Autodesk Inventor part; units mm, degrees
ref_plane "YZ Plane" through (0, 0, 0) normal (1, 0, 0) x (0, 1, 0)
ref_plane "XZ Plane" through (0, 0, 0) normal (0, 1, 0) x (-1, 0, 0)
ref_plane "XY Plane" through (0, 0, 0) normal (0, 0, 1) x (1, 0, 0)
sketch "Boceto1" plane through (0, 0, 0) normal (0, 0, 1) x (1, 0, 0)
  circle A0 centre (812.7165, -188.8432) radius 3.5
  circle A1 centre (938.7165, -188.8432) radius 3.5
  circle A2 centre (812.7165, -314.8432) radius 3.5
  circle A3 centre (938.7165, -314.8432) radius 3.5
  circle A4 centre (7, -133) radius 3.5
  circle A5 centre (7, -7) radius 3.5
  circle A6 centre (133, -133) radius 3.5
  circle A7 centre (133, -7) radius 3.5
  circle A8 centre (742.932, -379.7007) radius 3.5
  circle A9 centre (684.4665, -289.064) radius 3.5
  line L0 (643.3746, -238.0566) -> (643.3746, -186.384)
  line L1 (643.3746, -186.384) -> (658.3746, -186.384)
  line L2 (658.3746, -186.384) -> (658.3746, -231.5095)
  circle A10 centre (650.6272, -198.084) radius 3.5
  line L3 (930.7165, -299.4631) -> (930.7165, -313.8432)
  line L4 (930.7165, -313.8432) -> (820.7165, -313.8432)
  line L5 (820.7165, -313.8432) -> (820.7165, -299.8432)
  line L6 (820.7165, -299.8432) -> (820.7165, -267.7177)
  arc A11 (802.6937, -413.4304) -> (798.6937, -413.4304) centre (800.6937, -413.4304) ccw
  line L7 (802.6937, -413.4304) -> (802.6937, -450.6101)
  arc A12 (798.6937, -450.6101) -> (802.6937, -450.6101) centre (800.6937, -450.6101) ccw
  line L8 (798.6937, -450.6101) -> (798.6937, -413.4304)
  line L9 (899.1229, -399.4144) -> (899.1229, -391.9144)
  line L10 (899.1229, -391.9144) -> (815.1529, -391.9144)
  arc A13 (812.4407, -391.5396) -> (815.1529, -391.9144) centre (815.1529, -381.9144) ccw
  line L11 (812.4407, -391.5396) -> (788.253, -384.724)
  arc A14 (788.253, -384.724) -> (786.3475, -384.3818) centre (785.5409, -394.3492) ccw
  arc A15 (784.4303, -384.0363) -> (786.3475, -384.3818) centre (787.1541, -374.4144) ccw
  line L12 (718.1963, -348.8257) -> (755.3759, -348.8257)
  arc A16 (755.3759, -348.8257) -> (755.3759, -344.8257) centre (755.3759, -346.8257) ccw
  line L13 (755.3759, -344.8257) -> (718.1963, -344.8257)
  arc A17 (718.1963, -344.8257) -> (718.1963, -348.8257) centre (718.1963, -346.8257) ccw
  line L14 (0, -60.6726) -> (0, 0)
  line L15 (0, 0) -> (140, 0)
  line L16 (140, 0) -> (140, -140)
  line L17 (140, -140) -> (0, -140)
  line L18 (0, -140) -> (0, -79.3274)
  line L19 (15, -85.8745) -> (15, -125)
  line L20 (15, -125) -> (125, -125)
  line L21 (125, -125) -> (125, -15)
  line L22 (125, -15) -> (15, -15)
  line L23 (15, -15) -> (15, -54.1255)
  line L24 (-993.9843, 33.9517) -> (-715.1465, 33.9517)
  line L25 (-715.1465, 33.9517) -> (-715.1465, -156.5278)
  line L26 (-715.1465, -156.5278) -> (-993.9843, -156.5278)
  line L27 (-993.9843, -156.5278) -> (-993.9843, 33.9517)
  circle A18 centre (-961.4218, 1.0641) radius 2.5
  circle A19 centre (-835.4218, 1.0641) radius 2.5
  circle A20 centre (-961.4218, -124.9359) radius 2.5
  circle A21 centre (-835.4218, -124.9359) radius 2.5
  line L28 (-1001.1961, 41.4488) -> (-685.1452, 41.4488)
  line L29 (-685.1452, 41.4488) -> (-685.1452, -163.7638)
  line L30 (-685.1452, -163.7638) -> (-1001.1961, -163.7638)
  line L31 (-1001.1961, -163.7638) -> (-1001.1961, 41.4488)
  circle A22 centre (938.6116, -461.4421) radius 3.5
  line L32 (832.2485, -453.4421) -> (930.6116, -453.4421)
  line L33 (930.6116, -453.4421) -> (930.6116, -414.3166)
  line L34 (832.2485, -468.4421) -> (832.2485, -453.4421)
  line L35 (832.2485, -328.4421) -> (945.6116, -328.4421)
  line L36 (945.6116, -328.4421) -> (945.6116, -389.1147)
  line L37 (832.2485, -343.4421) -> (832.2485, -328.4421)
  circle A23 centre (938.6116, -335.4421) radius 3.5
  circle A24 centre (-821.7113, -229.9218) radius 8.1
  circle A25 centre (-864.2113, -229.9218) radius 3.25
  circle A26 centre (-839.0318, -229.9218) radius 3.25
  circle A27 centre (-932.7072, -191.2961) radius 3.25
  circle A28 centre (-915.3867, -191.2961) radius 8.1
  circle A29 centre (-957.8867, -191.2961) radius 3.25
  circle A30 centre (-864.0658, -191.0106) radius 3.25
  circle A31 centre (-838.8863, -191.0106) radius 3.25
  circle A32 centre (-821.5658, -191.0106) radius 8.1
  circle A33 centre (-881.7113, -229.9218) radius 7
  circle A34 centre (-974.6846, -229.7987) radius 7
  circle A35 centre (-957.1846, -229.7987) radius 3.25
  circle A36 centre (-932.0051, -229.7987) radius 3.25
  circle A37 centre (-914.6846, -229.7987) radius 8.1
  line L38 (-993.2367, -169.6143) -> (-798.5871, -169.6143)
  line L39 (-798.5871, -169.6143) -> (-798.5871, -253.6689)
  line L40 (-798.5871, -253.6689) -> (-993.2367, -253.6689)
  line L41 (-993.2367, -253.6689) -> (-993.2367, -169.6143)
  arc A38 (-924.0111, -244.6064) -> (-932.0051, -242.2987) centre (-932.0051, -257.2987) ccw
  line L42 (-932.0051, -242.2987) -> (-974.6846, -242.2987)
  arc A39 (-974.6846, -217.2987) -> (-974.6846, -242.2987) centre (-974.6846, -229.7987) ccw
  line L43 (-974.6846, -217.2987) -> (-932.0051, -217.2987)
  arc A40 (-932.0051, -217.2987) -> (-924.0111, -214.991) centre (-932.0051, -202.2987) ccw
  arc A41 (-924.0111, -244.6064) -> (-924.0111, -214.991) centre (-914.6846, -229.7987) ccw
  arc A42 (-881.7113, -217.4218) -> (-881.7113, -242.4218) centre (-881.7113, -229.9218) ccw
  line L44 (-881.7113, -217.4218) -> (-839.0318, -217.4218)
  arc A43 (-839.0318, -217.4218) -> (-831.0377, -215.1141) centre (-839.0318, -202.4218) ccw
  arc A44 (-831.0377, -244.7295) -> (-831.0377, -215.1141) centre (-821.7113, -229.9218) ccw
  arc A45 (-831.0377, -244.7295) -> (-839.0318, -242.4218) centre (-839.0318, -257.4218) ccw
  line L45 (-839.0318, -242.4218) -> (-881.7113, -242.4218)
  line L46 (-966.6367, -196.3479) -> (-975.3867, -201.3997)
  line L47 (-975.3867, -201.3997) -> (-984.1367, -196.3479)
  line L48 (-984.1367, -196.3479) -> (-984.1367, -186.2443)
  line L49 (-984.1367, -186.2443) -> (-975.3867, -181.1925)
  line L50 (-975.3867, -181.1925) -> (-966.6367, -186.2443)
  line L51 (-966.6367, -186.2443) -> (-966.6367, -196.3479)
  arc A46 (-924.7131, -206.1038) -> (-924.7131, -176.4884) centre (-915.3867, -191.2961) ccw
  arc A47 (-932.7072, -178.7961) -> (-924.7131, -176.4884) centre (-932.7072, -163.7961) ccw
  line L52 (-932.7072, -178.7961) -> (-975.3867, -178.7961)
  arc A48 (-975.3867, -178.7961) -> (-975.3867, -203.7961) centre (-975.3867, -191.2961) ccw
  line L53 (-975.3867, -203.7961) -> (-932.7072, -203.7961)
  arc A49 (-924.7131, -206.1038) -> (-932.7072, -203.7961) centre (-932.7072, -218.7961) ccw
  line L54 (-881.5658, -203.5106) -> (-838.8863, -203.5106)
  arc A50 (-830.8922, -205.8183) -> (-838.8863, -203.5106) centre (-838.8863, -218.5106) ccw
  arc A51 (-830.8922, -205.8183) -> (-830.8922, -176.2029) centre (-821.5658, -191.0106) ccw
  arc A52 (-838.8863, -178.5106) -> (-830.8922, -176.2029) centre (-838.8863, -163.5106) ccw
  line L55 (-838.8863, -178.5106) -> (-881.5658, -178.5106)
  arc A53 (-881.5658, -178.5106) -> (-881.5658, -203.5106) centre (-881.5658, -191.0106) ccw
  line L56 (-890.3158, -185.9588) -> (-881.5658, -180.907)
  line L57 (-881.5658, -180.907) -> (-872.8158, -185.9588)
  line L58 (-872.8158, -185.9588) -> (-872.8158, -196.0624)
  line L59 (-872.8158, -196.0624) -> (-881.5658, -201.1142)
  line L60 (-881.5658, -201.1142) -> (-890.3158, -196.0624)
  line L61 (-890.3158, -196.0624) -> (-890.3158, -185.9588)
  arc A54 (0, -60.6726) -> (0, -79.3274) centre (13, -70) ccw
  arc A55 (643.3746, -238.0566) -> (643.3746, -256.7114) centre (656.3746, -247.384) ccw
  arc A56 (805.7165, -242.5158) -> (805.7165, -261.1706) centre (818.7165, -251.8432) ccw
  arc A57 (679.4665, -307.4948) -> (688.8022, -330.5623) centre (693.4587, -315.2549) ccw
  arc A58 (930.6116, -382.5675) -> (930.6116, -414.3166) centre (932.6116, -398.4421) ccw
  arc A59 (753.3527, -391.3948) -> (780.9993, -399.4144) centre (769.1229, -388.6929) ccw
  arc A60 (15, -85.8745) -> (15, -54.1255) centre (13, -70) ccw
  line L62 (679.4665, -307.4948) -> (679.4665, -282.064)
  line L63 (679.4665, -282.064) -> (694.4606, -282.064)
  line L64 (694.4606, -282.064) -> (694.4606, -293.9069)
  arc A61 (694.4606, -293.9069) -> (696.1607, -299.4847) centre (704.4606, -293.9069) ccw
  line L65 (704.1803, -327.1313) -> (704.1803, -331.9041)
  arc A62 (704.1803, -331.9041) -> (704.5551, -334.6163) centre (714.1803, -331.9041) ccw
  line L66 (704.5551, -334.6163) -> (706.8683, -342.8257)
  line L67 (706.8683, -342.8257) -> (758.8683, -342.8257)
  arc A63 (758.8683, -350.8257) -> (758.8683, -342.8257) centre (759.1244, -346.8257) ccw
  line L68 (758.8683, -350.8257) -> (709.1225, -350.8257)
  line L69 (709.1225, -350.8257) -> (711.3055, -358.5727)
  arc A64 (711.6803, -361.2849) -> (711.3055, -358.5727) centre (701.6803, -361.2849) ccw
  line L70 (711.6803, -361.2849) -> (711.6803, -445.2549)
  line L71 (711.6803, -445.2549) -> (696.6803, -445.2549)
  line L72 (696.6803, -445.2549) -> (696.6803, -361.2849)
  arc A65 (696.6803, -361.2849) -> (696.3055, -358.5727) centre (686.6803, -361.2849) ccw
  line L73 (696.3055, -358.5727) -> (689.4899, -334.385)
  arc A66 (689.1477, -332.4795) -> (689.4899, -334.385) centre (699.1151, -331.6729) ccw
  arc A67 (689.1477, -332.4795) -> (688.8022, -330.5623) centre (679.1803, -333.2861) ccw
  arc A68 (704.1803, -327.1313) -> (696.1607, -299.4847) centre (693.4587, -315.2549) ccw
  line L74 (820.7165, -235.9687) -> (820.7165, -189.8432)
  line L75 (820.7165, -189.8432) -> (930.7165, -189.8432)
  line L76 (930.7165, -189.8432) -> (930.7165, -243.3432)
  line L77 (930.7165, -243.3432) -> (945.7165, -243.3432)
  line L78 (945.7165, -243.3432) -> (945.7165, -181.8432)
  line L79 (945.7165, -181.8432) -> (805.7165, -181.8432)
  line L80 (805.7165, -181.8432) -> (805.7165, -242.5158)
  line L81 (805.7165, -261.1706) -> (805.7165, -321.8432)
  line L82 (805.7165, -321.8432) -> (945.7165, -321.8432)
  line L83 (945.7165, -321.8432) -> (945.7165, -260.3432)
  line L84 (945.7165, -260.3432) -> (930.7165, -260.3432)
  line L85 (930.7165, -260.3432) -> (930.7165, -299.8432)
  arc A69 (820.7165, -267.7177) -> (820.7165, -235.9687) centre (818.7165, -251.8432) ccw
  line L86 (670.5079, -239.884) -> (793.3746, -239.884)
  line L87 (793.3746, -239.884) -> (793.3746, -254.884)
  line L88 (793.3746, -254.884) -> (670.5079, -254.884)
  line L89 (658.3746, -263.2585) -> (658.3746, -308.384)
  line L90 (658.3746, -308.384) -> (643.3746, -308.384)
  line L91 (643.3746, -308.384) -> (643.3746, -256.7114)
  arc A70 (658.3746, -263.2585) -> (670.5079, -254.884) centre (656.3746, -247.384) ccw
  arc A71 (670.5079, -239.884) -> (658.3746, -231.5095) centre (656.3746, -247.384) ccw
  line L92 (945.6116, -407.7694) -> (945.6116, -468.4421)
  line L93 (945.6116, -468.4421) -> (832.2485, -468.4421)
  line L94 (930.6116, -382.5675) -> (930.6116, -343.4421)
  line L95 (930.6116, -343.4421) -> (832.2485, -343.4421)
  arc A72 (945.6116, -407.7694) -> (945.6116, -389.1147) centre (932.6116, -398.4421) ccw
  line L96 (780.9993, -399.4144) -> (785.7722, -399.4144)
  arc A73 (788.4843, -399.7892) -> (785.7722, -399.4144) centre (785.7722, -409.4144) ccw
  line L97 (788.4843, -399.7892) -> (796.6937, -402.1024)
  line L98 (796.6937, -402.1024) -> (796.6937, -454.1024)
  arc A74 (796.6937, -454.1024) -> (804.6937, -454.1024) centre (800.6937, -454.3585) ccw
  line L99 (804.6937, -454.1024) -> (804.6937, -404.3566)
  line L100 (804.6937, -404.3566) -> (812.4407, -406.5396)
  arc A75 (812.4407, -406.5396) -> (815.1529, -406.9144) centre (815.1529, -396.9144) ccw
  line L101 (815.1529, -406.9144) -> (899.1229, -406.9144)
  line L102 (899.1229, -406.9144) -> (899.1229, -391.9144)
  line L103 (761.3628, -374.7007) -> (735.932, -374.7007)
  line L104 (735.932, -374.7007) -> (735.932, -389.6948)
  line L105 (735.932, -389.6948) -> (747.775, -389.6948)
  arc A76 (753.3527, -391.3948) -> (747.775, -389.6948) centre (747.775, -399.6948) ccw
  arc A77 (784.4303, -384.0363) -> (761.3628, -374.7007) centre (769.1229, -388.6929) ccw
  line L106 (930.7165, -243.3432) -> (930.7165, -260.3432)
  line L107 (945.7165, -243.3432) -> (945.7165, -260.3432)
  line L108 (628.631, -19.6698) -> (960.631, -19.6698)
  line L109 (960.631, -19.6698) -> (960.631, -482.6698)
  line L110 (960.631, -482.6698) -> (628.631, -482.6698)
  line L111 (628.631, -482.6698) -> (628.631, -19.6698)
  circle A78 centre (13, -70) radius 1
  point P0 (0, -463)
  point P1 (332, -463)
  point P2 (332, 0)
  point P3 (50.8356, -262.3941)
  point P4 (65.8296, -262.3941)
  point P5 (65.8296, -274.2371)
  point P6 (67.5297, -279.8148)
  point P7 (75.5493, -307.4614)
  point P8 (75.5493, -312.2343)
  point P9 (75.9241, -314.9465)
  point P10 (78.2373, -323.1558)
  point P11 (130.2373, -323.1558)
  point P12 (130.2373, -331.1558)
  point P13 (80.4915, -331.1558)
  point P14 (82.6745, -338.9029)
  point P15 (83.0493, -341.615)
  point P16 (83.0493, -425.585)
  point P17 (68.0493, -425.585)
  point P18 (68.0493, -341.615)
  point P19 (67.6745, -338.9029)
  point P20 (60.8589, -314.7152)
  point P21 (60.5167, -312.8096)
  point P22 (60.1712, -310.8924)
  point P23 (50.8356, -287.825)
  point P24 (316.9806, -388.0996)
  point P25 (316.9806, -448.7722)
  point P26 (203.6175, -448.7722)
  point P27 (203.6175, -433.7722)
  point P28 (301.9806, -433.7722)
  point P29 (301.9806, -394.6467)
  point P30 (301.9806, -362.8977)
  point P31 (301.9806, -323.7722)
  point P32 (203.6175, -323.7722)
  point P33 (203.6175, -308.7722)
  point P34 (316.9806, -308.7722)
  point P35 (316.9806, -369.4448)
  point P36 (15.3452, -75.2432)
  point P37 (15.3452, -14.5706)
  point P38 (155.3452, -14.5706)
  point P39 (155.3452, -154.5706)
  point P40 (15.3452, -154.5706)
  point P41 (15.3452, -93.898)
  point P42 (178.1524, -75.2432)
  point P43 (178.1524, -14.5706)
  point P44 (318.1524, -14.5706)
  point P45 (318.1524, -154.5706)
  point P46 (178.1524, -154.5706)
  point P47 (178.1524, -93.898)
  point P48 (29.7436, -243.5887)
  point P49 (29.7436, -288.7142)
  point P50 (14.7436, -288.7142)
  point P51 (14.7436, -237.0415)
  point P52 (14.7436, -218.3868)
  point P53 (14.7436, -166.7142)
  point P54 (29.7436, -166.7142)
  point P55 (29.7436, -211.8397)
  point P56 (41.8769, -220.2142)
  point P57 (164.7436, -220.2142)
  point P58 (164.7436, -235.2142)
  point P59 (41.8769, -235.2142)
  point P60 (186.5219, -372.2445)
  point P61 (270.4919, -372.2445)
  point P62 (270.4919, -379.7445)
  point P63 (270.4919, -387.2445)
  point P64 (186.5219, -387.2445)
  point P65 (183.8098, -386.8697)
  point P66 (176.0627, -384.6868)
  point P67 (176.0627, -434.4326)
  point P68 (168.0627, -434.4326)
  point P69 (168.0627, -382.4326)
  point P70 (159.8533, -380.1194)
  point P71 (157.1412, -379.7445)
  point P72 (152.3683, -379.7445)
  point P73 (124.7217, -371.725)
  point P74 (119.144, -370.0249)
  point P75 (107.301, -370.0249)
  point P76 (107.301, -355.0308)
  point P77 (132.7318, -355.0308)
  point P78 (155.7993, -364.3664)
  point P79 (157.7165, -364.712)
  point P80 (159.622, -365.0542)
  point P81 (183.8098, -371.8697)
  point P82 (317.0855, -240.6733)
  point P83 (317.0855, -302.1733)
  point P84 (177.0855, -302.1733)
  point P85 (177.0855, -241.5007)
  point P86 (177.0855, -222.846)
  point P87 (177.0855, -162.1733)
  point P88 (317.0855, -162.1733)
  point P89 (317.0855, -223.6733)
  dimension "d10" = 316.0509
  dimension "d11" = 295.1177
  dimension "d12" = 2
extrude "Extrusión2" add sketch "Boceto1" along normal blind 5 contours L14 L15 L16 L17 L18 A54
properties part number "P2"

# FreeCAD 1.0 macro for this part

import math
import FreeCAD as App
import Part
import Sketcher

V = App.Vector
Q = App.Units.Quantity

doc = App.newDocument("Part")
params = doc.addObject("Spreadsheet::Sheet", "Params")
for row, (alias, value) in enumerate([
    ("sketch1_diameter", "2 mm"),
    ("sketch1_diameter2", "7 mm"),
    ("sketch1_radius", "16 mm"),
    ("sketch1_width", "140 mm"),
    ("sketch1_width2", "110 mm"),
    ("pad1_length", "5 mm"),
], start=1):
    params.set(f"A{row}", alias)
    params.set(f"B{row}", "=" + value)
    params.setAlias(f"B{row}", alias)

body = doc.addObject("PartDesign::Body", "Body")

# Sketch on XY plane
sketch1 = doc.addObject("Sketcher::SketchObject", "Sketch")
body.addObject(sketch1)
sketch1.AttachmentSupport = (doc.XY_Plane, [""])
sketch1.MapMode = "FlatFace"
sketch1.addGeometry([
    Part.LineSegment(V(0, 0, 0), V(0, -60.7, 0)),  # 0
    Part.ArcOfCircle(Part.Circle(V(13, -70, 0), V(0, 0, 1), 16), math.radians(144), math.radians(216)),  # 1
    Part.LineSegment(V(0, -79.3, 0), V(0, -140, 0)),  # 2
    Part.LineSegment(V(0, -140, 0), V(140, -140, 0)),  # 3
    Part.LineSegment(V(140, -140, 0), V(140, 0, 0)),  # 4
    Part.LineSegment(V(140, 0, 0), V(0, 0, 0)),  # 5
    Part.Circle(V(7, -133, 0), V(0, 0, 1), 3.5),  # 6
    Part.Circle(V(133, -133, 0), V(0, 0, 1), 3.5),  # 7
    Part.Circle(V(13, -70, 0), V(0, 0, 1), 1),  # 8
    Part.LineSegment(V(15, -125, 0), V(15, -85.9, 0)),  # 9
    Part.ArcOfCircle(Part.Circle(V(13, -70, 0), V(0, 0, 1), 16), math.radians(-83), math.radians(83)),  # 10
    Part.LineSegment(V(15, -54.1, 0), V(15, -15, 0)),  # 11
    Part.LineSegment(V(15, -15, 0), V(125, -15, 0)),  # 12
    Part.LineSegment(V(125, -15, 0), V(125, -125, 0)),  # 13
    Part.LineSegment(V(125, -125, 0), V(15, -125, 0)),  # 14
    Part.Circle(V(7, -7, 0), V(0, 0, 1), 3.5),  # 15
    Part.Circle(V(133, -7, 0), V(0, 0, 1), 3.5),  # 16
], False)
sketch1.addConstraint([
    Sketcher.Constraint("Coincident", 0, 2, 1, 1),
    Sketcher.Constraint("Coincident", 1, 2, 2, 1),
    Sketcher.Constraint("Coincident", 2, 2, 3, 1),
    Sketcher.Constraint("Coincident", 3, 2, 4, 1),
    Sketcher.Constraint("Coincident", 4, 2, 5, 1),
    Sketcher.Constraint("Coincident", 5, 2, 0, 1),
    Sketcher.Constraint("Coincident", 9, 2, 10, 1),
    Sketcher.Constraint("Coincident", 10, 2, 11, 1),
    Sketcher.Constraint("Coincident", 11, 2, 12, 1),
    Sketcher.Constraint("Coincident", 12, 2, 13, 1),
    Sketcher.Constraint("Coincident", 13, 2, 14, 1),
    Sketcher.Constraint("Coincident", 14, 2, 9, 1),
    Sketcher.Constraint("Vertical", 0),
    Sketcher.Constraint("Vertical", 2),
    Sketcher.Constraint("Horizontal", 3),
    Sketcher.Constraint("Vertical", 4),
    Sketcher.Constraint("Horizontal", 5),
    Sketcher.Constraint("Vertical", 9),
    Sketcher.Constraint("Vertical", 11),
    Sketcher.Constraint("Horizontal", 12),
    Sketcher.Constraint("Vertical", 13),
    Sketcher.Constraint("Horizontal", 14),
    Sketcher.Constraint("Coincident", 5, 2, -1, 1),
    Sketcher.Constraint("Coincident", 8, 3, 1, 3),
    Sketcher.Constraint("Coincident", 10, 3, 1, 3),
    Sketcher.Constraint("Equal", 6, 7),
    Sketcher.Constraint("Equal", 1, 10),
    Sketcher.Constraint("Equal", 7, 15),
    Sketcher.Constraint("Equal", 15, 16),
    Sketcher.Constraint("PointOnObject", 1, 2, -2),
    Sketcher.Constraint("Horizontal", 6, 3, 7, 3),
    Sketcher.Constraint("Horizontal", 15, 3, 16, 3),
    Sketcher.Constraint("Vertical", 6, 3, 15, 3),
    Sketcher.Constraint("Vertical", 7, 3, 16, 3),
    Sketcher.Constraint("Vertical", 9, 2, 10, 2),
    Sketcher.Constraint("Equal", 0, 2),
    Sketcher.Constraint("Equal", 5, 4),
    Sketcher.Constraint("Equal", 9, 11),
    Sketcher.Constraint("Equal", 14, 13),
    Sketcher.Constraint("Diameter", 8, Q("2 mm")),
    Sketcher.Constraint("Diameter", 6, Q("7 mm")),
    Sketcher.Constraint("Radius", 1, Q("16 mm")),
    Sketcher.Constraint("DistanceX", 1, 3, 9, 2, Q("2 mm")),
    Sketcher.Constraint("DistanceX", 3, 1, 3, 2, Q("140 mm")),
    Sketcher.Constraint("DistanceX", 12, 1, 12, 2, Q("110 mm")),
    Sketcher.Constraint("DistanceX", -1, 1, 1, 3, Q("13 mm")),
    Sketcher.Constraint("DistanceX", -1, 1, 6, 3, Q("7 mm")),
    Sketcher.Constraint("DistanceY", 6, 3, -1, 1, Q("133 mm")),
    Sketcher.Constraint("DistanceX", -1, 1, 7, 3, Q("133 mm")),
    Sketcher.Constraint("DistanceY", 15, 3, -1, 1, Q("7 mm")),
])
sketch1.setExpression("Constraints[39]", "Params.sketch1_diameter")
sketch1.setExpression("Constraints[40]", "Params.sketch1_diameter2")
sketch1.setExpression("Constraints[41]", "Params.sketch1_radius")
sketch1.setExpression("Constraints[43]", "Params.sketch1_width")
sketch1.setExpression("Constraints[44]", "Params.sketch1_width2")
pad1 = doc.addObject("PartDesign::Pad", "Pad")
body.addObject(pad1)
pad1.Profile = sketch1
pad1.setExpression("Length", "Params.pad1_length")

doc.recompute()
